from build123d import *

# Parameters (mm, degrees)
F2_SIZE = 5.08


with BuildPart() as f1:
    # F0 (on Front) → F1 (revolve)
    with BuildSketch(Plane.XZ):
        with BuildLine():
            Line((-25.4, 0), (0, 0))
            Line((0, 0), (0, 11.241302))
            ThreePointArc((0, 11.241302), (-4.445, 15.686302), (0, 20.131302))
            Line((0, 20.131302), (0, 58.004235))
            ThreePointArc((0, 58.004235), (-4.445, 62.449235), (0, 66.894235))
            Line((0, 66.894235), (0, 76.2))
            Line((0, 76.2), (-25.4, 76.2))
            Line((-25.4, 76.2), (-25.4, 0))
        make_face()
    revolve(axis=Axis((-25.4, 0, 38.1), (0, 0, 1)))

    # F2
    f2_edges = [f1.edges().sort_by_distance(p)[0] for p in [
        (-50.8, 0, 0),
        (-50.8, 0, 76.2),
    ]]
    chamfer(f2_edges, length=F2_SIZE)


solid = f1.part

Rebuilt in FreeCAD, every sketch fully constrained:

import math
import FreeCAD as App
import Part
import Sketcher
Q = App.Units.Quantity


def edges_at(feature, points):
    """Names of the edges that pass closest to the given points."""
    edges = feature.Shape.Edges
    near = lambda p: min(range(len(edges)), key=lambda i: edges[i].distToShape(Part.Vertex(*p))[0])
    return sorted({f"Edge{near(p) + 1}" for p in points})

doc = App.newDocument("Part")
body = doc.addObject("PartDesign::Body", "Body")

# Sketch on XZ plane
sketch1 = body.newObject("Sketcher::SketchObject", "Sketch")
sketch1.AttachmentSupport = (doc.getObject("XZ_Plane"), [""])
sketch1.MapMode = "FlatFace"
sketch1.addGeometry(Part.LineSegment(App.Vector(-25.4, 0, 0), App.Vector(0, 0, 0)), False)
sketch1.addGeometry(Part.LineSegment(App.Vector(0, 0, 0), App.Vector(0, 11.2, 0)), False)
sketch1.addGeometry(Part.ArcOfCircle(Part.Circle(App.Vector(0, 15.7, 0), App.Vector(0, 0, 1), 4.4), math.radians(90), math.radians(270)), False)
sketch1.addGeometry(Part.LineSegment(App.Vector(0, 20.1, 0), App.Vector(0, 58, 0)), False)
sketch1.addGeometry(Part.ArcOfCircle(Part.Circle(App.Vector(0, 62.4, 0), App.Vector(0, 0, 1), 4.4), math.radians(90), math.radians(270)), False)
sketch1.addGeometry(Part.LineSegment(App.Vector(0, 66.9, 0), App.Vector(0, 76.2, 0)), False)
sketch1.addGeometry(Part.LineSegment(App.Vector(0, 76.2, 0), App.Vector(-25.4, 76.2, 0)), False)
sketch1.addGeometry(Part.LineSegment(App.Vector(-25.4, 76.2, 0), App.Vector(-25.4, 0, 0)), False)
sketch1.addGeometry(Part.LineSegment(App.Vector(-25.4, 0, 0), App.Vector(-25.4, 76.2, 0)), True)  # axis
sketch1.addConstraint(Sketcher.Constraint("Coincident", 0, 2, 1, 1))
sketch1.addConstraint(Sketcher.Constraint("Coincident", 1, 2, 2, 2))
sketch1.addConstraint(Sketcher.Constraint("Coincident", 2, 1, 3, 1))
sketch1.addConstraint(Sketcher.Constraint("Coincident", 3, 2, 4, 2))
sketch1.addConstraint(Sketcher.Constraint("Coincident", 4, 1, 5, 1))
sketch1.addConstraint(Sketcher.Constraint("Coincident", 5, 2, 6, 1))
sketch1.addConstraint(Sketcher.Constraint("Coincident", 6, 2, 7, 1))
sketch1.addConstraint(Sketcher.Constraint("Coincident", 7, 2, 0, 1))
sketch1.addConstraint(Sketcher.Constraint("Horizontal", 0))
sketch1.addConstraint(Sketcher.Constraint("Vertical", 1))
sketch1.addConstraint(Sketcher.Constraint("Vertical", 3))
sketch1.addConstraint(Sketcher.Constraint("Vertical", 5))
sketch1.addConstraint(Sketcher.Constraint("Horizontal", 6))
sketch1.addConstraint(Sketcher.Constraint("Vertical", 7))
sketch1.addConstraint(Sketcher.Constraint("Vertical", 8))
sketch1.addConstraint(Sketcher.Constraint("Coincident", 0, 2, -1, 1))
sketch1.addConstraint(Sketcher.Constraint("Coincident", 8, 1, 7, 2))
sketch1.addConstraint(Sketcher.Constraint("Equal", 2, 4))
sketch1.addConstraint(Sketcher.Constraint("PointOnObject", 2, 3, -2))
sketch1.addConstraint(Sketcher.Constraint("PointOnObject", 4, 3, -2))
sketch1.addConstraint(Sketcher.Constraint("PointOnObject", 2, 1, -2))
sketch1.addConstraint(Sketcher.Constraint("PointOnObject", 4, 1, -2))
sketch1.addConstraint(Sketcher.Constraint("Horizontal", 5, 2, 8, 2))
sketch1.addConstraint(Sketcher.Constraint("DistanceX", 0, 1, 0, 2, Q("1 in")))
sketch1.addConstraint(Sketcher.Constraint("DistanceY", 7, 2, 7, 1, Q("3 in")))
sketch1.addConstraint(Sketcher.Constraint("Radius", 2, Q("0.175 in")))
sketch1.addConstraint(Sketcher.Constraint("DistanceY", 1, 1, 1, 2, Q("11.241302 mm")))
sketch1.addConstraint(Sketcher.Constraint("DistanceY", 3, 1, 3, 2, Q("37.872933 mm")))
revolution = body.newObject("PartDesign::Revolution", "Revolution")
revolution.Profile = sketch1
revolution.ReferenceAxis = (sketch1, ["Axis0"])
revolution.Angle = 360
doc.recompute()

chamfer = body.newObject("PartDesign::Chamfer", "Chamfer")
chamfer.Base = (revolution, edges_at(revolution, [(-50.8, 0, 0), (-50.8, 0, 76.2)]))
chamfer.Size = Q("0.2 in")

doc.recompute()
